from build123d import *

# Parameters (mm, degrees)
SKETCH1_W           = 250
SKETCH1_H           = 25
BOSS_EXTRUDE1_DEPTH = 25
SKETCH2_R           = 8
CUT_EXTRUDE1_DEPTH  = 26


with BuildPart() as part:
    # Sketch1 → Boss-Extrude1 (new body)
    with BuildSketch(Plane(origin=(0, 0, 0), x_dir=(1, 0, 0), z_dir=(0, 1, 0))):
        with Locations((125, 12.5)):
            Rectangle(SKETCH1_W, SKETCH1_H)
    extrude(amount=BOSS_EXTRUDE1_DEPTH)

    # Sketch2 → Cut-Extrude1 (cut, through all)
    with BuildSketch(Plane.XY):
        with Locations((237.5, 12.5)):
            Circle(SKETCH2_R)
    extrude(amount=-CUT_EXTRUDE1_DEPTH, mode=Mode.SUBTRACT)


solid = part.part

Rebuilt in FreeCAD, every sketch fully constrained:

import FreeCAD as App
import Part
import Sketcher


def add_polygon(sketch, points):
    """Adds a closed chain of lines whose ends are joined by coincident constraints."""
    first, n = sketch.GeometryCount, len(points)
    for a, b in zip(points, points[1:] + points[:1]):
        sketch.addGeometry(Part.LineSegment(App.Vector(*a, 0), App.Vector(*b, 0)), False)
    for i in range(n):
        sketch.addConstraint(Sketcher.Constraint("Coincident", first + i, 2, first + (i + 1) % n, 1))

doc = App.newDocument("Part")
body = doc.addObject("PartDesign::Body", "Body")

# Sketch on XZ plane
sketch1 = doc.addObject("Sketcher::SketchObject", "Sketch")
body.addObject(sketch1)
sketch1.AttachmentSupport = (doc.XZ_Plane, [""])
sketch1.MapMode = "FlatFace"
add_polygon(sketch1, [(0, -25), (0, 0), (250, 0), (250, -25)])  # lines 0-3
sketch1.addConstraint([
    Sketcher.Constraint("Vertical", 0),
    Sketcher.Constraint("Horizontal", 1),
    Sketcher.Constraint("Vertical", 2),
    Sketcher.Constraint("Horizontal", 3),
    Sketcher.Constraint("Coincident", 0, 2, -1, 1),
    Sketcher.Constraint("DistanceX", 1, 1, 1, 2, 250.0),
    Sketcher.Constraint("DistanceY", 0, 1, 0, 2, 25.0),
])
pad1 = doc.addObject("PartDesign::Pad", "Pad")
body.addObject(pad1)
pad1.Profile = sketch1
pad1.Length = 25
pad1.Reversed = True

# Sketch on XY plane
sketch2 = doc.addObject("Sketcher::SketchObject", "Sketch001")
body.addObject(sketch2)
sketch2.AttachmentSupport = (doc.XY_Plane, [""])
sketch2.MapMode = "FlatFace"
sketch2.addGeometry(Part.Circle(App.Vector(238, 12, 0), App.Vector(0, 0, 1), 8), False)
sketch2.addConstraint([
    Sketcher.Constraint("Diameter", 0, 16.0),
    Sketcher.Constraint("DistanceX", -1, 1, 0, 3, 237.5),
    Sketcher.Constraint("DistanceY", -1, 1, 0, 3, 12.5),
])
pocket1 = doc.addObject("PartDesign::Pocket", "Pocket")
body.addObject(pocket1)
pocket1.Profile = sketch2
pocket1.Type = "ThroughAll"

doc.recompute()
